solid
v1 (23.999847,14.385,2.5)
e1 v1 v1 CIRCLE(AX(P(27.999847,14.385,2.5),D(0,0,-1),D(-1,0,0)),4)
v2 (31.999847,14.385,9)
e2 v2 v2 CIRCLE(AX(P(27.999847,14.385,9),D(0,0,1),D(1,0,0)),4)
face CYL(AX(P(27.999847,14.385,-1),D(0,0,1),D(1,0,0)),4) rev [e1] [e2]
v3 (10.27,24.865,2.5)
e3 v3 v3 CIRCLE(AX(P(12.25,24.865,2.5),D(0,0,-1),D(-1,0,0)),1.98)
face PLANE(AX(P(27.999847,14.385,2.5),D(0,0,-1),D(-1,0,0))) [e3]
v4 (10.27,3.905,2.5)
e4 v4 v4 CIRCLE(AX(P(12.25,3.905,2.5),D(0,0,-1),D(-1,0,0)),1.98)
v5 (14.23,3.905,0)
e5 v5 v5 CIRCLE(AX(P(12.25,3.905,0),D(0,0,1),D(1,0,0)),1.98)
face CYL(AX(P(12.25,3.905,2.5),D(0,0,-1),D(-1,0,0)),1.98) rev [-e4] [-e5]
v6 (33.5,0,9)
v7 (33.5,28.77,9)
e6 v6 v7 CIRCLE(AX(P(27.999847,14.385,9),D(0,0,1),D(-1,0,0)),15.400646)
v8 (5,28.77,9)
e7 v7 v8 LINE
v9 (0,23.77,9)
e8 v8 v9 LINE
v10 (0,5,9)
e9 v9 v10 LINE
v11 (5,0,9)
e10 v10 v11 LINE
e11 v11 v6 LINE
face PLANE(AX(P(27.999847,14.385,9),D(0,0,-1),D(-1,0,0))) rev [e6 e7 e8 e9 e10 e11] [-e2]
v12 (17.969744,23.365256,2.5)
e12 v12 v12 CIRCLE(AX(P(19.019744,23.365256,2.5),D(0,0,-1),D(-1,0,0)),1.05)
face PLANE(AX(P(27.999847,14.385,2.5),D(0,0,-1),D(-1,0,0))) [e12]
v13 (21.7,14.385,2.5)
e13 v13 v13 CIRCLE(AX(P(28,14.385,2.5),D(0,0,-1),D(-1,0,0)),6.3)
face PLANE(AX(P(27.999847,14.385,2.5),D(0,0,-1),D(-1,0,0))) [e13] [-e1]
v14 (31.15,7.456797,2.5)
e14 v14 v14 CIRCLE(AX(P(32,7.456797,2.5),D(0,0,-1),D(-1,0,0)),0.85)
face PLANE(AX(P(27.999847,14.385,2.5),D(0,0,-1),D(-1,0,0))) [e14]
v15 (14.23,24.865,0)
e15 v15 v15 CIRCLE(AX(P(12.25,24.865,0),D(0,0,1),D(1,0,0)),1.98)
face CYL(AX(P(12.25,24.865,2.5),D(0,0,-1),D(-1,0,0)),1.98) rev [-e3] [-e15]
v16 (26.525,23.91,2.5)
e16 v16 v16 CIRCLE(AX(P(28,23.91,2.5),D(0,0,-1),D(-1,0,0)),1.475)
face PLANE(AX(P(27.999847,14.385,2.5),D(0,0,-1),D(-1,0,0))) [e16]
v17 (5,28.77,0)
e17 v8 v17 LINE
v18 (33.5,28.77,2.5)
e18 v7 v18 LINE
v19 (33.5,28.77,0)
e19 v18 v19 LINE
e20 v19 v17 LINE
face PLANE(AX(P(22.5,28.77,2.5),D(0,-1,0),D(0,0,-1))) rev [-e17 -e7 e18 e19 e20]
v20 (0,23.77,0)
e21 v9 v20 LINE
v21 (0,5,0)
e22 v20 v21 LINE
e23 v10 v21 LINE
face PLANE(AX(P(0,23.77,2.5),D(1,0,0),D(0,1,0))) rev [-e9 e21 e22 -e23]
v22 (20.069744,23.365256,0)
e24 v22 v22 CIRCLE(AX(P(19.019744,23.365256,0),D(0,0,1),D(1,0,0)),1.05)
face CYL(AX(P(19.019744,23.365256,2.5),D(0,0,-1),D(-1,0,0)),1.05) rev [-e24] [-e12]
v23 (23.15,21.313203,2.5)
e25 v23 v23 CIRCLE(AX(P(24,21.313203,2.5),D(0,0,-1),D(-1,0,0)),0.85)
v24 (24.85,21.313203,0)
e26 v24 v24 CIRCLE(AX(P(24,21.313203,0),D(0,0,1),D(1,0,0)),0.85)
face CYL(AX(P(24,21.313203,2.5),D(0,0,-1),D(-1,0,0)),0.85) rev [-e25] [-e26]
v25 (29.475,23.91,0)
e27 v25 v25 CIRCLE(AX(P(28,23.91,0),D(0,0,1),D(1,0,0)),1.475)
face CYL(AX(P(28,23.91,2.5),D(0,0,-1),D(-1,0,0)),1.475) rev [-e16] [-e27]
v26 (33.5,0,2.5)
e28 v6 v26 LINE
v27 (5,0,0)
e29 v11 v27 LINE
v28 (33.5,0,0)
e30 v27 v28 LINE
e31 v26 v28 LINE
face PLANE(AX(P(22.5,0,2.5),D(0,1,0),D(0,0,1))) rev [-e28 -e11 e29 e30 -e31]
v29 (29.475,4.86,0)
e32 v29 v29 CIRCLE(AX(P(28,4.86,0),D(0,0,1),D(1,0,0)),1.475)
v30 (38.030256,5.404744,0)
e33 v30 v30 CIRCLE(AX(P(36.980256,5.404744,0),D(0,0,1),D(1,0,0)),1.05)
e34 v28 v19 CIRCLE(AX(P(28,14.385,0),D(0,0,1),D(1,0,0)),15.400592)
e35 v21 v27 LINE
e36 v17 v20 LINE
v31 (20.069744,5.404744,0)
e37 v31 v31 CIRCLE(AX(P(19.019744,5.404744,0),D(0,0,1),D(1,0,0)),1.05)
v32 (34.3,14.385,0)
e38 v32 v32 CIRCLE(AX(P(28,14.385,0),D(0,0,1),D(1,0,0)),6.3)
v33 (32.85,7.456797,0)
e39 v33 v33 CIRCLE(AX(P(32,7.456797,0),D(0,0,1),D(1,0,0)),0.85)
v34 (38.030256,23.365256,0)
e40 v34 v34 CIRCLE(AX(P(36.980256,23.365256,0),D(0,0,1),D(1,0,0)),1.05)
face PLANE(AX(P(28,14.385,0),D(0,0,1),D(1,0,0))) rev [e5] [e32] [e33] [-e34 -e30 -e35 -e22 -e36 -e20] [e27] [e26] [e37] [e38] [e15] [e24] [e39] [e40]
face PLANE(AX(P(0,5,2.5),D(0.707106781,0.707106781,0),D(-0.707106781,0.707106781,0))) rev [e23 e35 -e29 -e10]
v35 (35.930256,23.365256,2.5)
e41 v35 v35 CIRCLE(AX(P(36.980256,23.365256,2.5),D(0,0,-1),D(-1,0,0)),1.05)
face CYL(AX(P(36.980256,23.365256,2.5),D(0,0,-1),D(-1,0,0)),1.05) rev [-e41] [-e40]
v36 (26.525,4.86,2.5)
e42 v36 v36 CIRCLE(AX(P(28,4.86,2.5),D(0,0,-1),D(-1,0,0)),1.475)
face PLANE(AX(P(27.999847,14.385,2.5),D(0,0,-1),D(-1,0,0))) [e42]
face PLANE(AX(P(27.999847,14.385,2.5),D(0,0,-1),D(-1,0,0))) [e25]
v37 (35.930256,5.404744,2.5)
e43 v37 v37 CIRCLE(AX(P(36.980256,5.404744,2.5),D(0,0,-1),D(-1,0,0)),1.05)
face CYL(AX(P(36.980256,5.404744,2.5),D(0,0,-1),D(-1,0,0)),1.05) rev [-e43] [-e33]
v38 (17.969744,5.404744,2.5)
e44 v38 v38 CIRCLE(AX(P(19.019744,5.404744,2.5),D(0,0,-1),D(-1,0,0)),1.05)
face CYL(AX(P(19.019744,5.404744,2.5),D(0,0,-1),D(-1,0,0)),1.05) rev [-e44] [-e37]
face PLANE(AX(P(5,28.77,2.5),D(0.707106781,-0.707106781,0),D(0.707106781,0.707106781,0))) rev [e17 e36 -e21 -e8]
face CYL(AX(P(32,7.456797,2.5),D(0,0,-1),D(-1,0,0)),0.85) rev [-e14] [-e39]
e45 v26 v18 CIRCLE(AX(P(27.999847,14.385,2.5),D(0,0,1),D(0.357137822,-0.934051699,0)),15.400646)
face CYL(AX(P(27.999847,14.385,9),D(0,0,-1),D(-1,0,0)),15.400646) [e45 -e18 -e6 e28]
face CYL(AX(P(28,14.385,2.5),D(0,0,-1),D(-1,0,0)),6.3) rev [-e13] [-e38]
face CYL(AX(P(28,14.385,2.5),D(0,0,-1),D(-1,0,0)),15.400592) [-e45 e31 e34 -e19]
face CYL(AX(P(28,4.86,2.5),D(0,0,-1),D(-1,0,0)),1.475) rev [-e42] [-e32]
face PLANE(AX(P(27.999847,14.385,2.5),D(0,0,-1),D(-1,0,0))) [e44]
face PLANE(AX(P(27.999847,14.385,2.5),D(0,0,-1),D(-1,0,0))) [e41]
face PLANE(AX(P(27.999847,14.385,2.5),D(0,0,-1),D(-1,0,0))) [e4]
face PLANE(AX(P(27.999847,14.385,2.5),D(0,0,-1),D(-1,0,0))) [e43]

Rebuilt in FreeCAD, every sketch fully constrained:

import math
import FreeCAD as App
import Part
import Sketcher

V = App.Vector

doc = App.newDocument("Part")
body = doc.addObject("PartDesign::Body", "Body")

sketch1 = body.newObject("Sketcher::SketchObject", "Sketch")
sketch1.AttachmentSupport = (doc.getObject("XY_Plane"), [""])
sketch1.MapMode = "FlatFace"
sketch1.addGeometry([
    Part.LineSegment(V(5, 28.77, 0), V(0, 23.77, 0)),
    Part.LineSegment(V(0, 23.77, 0), V(0, 5, 0)),
    Part.LineSegment(V(0, 5, 0), V(5, 0, 0)),
    Part.LineSegment(V(5, 0, 0), V(33.5, 0, 0)),
    Part.ArcOfCircle(Part.Circle(V(28, 14.385, 0), V(0, 0, 1), 15.400592), math.radians(-69.076009), math.radians(69.076009)),
    Part.LineSegment(V(33.5, 28.77, 0), V(5, 28.77, 0)),
    Part.Circle(V(12.25, 3.905, 0), V(0, 0, 1), 1.98),
    Part.Circle(V(19.019744, 5.404744, 0), V(0, 0, 1), 1.05),
    Part.Circle(V(28, 4.86, 0), V(0, 0, 1), 1.475),
    Part.Circle(V(32, 7.456797, 0), V(0, 0, 1), 0.85),
    Part.Circle(V(36.980256, 5.404744, 0), V(0, 0, 1), 1.05),
    Part.Circle(V(12.25, 24.865, 0), V(0, 0, 1), 1.98),
    Part.Circle(V(19.019744, 23.365256, 0), V(0, 0, 1), 1.05),
    Part.Circle(V(24, 21.313203, 0), V(0, 0, 1), 0.85),
    Part.Circle(V(28, 14.385, 0), V(0, 0, 1), 6.3),
    Part.Circle(V(28, 23.91, 0), V(0, 0, 1), 1.475),
    Part.Circle(V(36.980256, 23.365256, 0), V(0, 0, 1), 1.05),
], False)
sketch1.addConstraint([
    Sketcher.Constraint("Coincident", 0, 2, 1, 1),
    Sketcher.Constraint("Coincident", 1, 2, 2, 1),
    Sketcher.Constraint("Coincident", 2, 2, 3, 1),
    Sketcher.Constraint("Coincident", 3, 2, 4, 1),
    Sketcher.Constraint("Coincident", 4, 2, 5, 1),
    Sketcher.Constraint("Coincident", 5, 2, 0, 1),
    Sketcher.Constraint("Vertical", 1),
    Sketcher.Constraint("Horizontal", 3),
    Sketcher.Constraint("Horizontal", 5),
    Sketcher.Constraint("Coincident", 14, 3, 4, 3),
    Sketcher.Constraint("Equal", 7, 10),
    Sketcher.Constraint("Equal", 6, 11),
    Sketcher.Constraint("Equal", 10, 12),
    Sketcher.Constraint("Equal", 9, 13),
    Sketcher.Constraint("Equal", 8, 15),
    Sketcher.Constraint("Equal", 12, 16),
    Sketcher.Constraint("PointOnObject", 0, 2, -2),
    Sketcher.Constraint("PointOnObject", 2, 2, -1),
    Sketcher.Constraint("Perpendicular", 0, 2),
    Sketcher.Constraint("Horizontal", 7, 3, 10, 3),
    Sketcher.Constraint("Horizontal", 12, 3, 16, 3),
    Sketcher.Constraint("Vertical", 4, 3, 8, 3),
    Sketcher.Constraint("Vertical", 6, 3, 11, 3),
    Sketcher.Constraint("Vertical", 7, 3, 12, 3),
    Sketcher.Constraint("Vertical", 14, 3, 15, 3),
    Sketcher.Constraint("Vertical", 10, 3, 16, 3),
    Sketcher.Constraint("Vertical", 3, 2, 4, 2),
    Sketcher.Constraint("Vertical", 2, 2, 5, 2),
    Sketcher.Constraint("Equal", 0, 2),
    Sketcher.Constraint("Diameter", 7, 2.1),
    Sketcher.Constraint("Diameter", 9, 1.7),
    Sketcher.Constraint("Diameter", 14, 12.6),
    Sketcher.Constraint("Diameter", 6, 3.96),
    Sketcher.Constraint("Diameter", 8, 2.95),
    Sketcher.Constraint("DistanceX", 3, 1, 3, 2, 28.5),
    Sketcher.Constraint("DistanceX", -1, 1, 4, 3, 28.0),
    Sketcher.Constraint("DistanceX", -1, 1, 9, 3, 32.0),
    Sketcher.Constraint("DistanceX", -1, 1, 13, 3, 24.0),
    Sketcher.Constraint("DistanceY", -1, 1, 1, 2, 5.0),
    Sketcher.Constraint("DistanceY", 1, 2, 1, 1, 18.77),
    Sketcher.Constraint("DistanceX", -1, 1, 6, 3, 12.25),
    Sketcher.Constraint("DistanceY", -1, 1, 8, 3, 4.86),
    Sketcher.Constraint("DistanceY", -1, 1, 15, 3, 23.91),
    Sketcher.Constraint("DistanceY", 6, 3, 4, 3, 10.48),
    Sketcher.Constraint("DistanceY", 4, 3, 11, 3, 10.48),
    Sketcher.Constraint("DistanceY", 9, 3, 12, 3, 15.908459),
    Sketcher.Constraint("DistanceY", 7, 3, 13, 3, 15.908459),
    Sketcher.Constraint("DistanceX", -1, 1, 7, 3, 19.019744),
    Sketcher.Constraint("DistanceY", -1, 1, 7, 3, 5.404744),
    Sketcher.Constraint("DistanceY", -1, 1, 9, 3, 7.456797),
    Sketcher.Constraint("DistanceX", -1, 1, 10, 3, 36.980256),
])
pad1 = body.newObject("PartDesign::Pad", "Pad")
pad1.Profile = sketch1
pad1.Length = 2.5

sketch2 = body.newObject("Sketcher::SketchObject", "Sketch001")
sketch2.AttachmentSupport = (doc.getObject("XY_Plane"), [""])
sketch2.MapMode = "FlatFace"
sketch2.AttachmentOffset = App.Placement(V(0, 0, 2.5), App.Rotation())
sketch2.addGeometry([
    Part.LineSegment(V(33.5, 28.77, 0), V(5, 28.77, 0)),
    Part.LineSegment(V(5, 28.77, 0), V(0, 23.77, 0)),
    Part.LineSegment(V(0, 23.77, 0), V(0, 5, 0)),
    Part.LineSegment(V(0, 5, 0), V(5, 0, 0)),
    Part.LineSegment(V(5, 0, 0), V(33.5, 0, 0)),
    Part.ArcOfCircle(Part.Circle(V(27.999847, 14.385, 0), V(0, 0, 1), 15.400646), math.radians(-69.075476), math.radians(69.075476)),
], False)
sketch2.addConstraint([
    Sketcher.Constraint("Coincident", 0, 2, 1, 1),
    Sketcher.Constraint("Coincident", 1, 2, 2, 1),
    Sketcher.Constraint("Coincident", 2, 2, 3, 1),
    Sketcher.Constraint("Coincident", 3, 2, 4, 1),
    Sketcher.Constraint("Coincident", 4, 2, 5, 1),
    Sketcher.Constraint("Coincident", 5, 2, 0, 1),
    Sketcher.Constraint("Horizontal", 0),
    Sketcher.Constraint("Vertical", 2),
    Sketcher.Constraint("Horizontal", 4),
    Sketcher.Constraint("PointOnObject", 1, 2, -2),
    Sketcher.Constraint("PointOnObject", 3, 2, -1),
    Sketcher.Constraint("Perpendicular", 1, 3),
    Sketcher.Constraint("Vertical", 0, 2, 3, 2),
    Sketcher.Constraint("Vertical", 4, 2, 5, 2),
    Sketcher.Constraint("Equal", 1, 3),
    Sketcher.Constraint("DistanceX", 0, 2, 0, 1, 28.5),
    Sketcher.Constraint("DistanceX", -1, 1, 0, 2, 5.0),
    Sketcher.Constraint("DistanceY", 2, 2, 2, 1, 18.77),
    Sketcher.Constraint("Radius", 5, 15.400646),
])
pad2 = body.newObject("PartDesign::Pad", "Pad001")
pad2.Profile = sketch2
pad2.Length = 6.5

sketch3 = body.newObject("Sketcher::SketchObject", "Sketch002")
sketch3.AttachmentSupport = (doc.getObject("XY_Plane"), [""])
sketch3.MapMode = "FlatFace"
sketch3.AttachmentOffset = App.Placement(V(0, 0, 9), App.Rotation())
sketch3.addGeometry(Part.Circle(V(27.999847, 14.385, 0), V(0, 0, 1), 4), False)
sketch3.addConstraint([
    Sketcher.Constraint("Diameter", 0, 8.0),
    Sketcher.Constraint("DistanceY", -1, 1, 0, 3, 14.385),
    Sketcher.Constraint("DistanceX", -1, 1, 0, 3, 27.999847),
])
pocket1 = body.newObject("PartDesign::Pocket", "Pocket")
pocket1.Profile = sketch3
pocket1.Length = 10

doc.recompute()
